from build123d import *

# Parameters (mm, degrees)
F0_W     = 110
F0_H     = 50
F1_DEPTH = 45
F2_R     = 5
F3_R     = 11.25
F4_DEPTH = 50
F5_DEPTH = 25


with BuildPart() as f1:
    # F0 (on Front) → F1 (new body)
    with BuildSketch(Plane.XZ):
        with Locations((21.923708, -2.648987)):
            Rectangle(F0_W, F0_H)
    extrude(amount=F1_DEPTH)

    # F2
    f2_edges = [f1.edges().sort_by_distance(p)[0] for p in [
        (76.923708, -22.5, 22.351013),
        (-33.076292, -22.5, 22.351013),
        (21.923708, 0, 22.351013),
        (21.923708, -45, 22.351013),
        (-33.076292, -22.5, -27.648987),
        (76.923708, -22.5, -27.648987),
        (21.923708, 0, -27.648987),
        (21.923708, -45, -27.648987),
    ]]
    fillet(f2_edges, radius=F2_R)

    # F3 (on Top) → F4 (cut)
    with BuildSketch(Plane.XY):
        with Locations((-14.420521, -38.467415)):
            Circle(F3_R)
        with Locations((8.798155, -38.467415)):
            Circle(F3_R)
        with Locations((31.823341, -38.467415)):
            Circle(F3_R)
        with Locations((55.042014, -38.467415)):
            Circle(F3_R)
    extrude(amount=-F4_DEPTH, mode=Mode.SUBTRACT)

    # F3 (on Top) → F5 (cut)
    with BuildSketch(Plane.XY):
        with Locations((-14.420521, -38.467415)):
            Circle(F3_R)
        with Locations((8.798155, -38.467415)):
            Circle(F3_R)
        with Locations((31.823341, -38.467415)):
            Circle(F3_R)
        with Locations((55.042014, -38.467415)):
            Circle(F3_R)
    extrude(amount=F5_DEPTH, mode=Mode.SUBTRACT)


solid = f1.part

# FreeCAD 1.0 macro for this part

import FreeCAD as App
import Part
import Sketcher

V = App.Vector
Q = App.Units.Quantity


def edges_at(feature, points):
    """Names of the edges that pass closest to the given points."""
    edges = feature.Shape.Edges
    near = lambda p: min(range(len(edges)), key=lambda i: edges[i].distToShape(Part.Vertex(*p))[0])
    return sorted({f"Edge{near(p) + 1}" for p in points})

doc = App.newDocument("Part")
body = doc.addObject("PartDesign::Body", "Body")

# Sketch on XZ plane
sketch1 = body.newObject("Sketcher::SketchObject", "Sketch")
sketch1.AttachmentSupport = (doc.getObject("XZ_Plane"), [""])
sketch1.MapMode = "FlatFace"
sketch1.addGeometry(Part.LineSegment(V(-33.076292, 22.351013, 0), V(-33.076292, -27.648987, 0)), False)
sketch1.addGeometry(Part.LineSegment(V(-33.076292, -27.648987, 0), V(76.923708, -27.648987, 0)), False)
sketch1.addGeometry(Part.LineSegment(V(76.923708, -27.648987, 0), V(76.923708, 22.351013, 0)), False)
sketch1.addGeometry(Part.LineSegment(V(76.923708, 22.351013, 0), V(-33.076292, 22.351013, 0)), False)
sketch1.addConstraint(Sketcher.Constraint("Coincident", 0, 2, 1, 1))
sketch1.addConstraint(Sketcher.Constraint("Coincident", 1, 2, 2, 1))
sketch1.addConstraint(Sketcher.Constraint("Coincident", 2, 2, 3, 1))
sketch1.addConstraint(Sketcher.Constraint("Coincident", 3, 2, 0, 1))
sketch1.addConstraint(Sketcher.Constraint("Vertical", 0))
sketch1.addConstraint(Sketcher.Constraint("Horizontal", 1))
sketch1.addConstraint(Sketcher.Constraint("Vertical", 2))
sketch1.addConstraint(Sketcher.Constraint("Horizontal", 3))
sketch1.addConstraint(Sketcher.Constraint("DistanceX", 1, 1, 1, 2, Q("110 mm")))
sketch1.addConstraint(Sketcher.Constraint("DistanceY", 0, 2, 0, 1, Q("50 mm")))
sketch1.addConstraint(Sketcher.Constraint("DistanceX", -1, 1, 1, 2, Q("76.923708 mm")))
sketch1.addConstraint(Sketcher.Constraint("DistanceY", 0, 2, -1, 1, Q("27.648987 mm")))
pad1 = body.newObject("PartDesign::Pad", "Pad")
pad1.Profile = sketch1
pad1.Length = 45
doc.recompute()

fillet = body.newObject("PartDesign::Fillet", "Fillet")
fillet.Base = (pad1, edges_at(pad1, [
    (76.924, -22.5, 22.351),
    (-33.076, -22.5, 22.351),
    (21.924, 0, 22.351),
    (21.924, -45, 22.351),
    (-33.076, -22.5, -27.649),
    (76.924, -22.5, -27.649),
    (21.924, 0, -27.649),
    (21.924, -45, -27.649),
]))
fillet.Radius = 5

# Sketch on XY plane
sketch2 = body.newObject("Sketcher::SketchObject", "Sketch001")
sketch2.AttachmentSupport = (doc.getObject("XY_Plane"), [""])
sketch2.MapMode = "FlatFace"
sketch2.addGeometry(Part.Circle(V(-14.420521, -38.467415, 0), V(0, 0, 1), 11.25), False)
sketch2.addGeometry(Part.Circle(V(8.798155, -38.467415, 0), V(0, 0, 1), 11.25), False)
sketch2.addGeometry(Part.Circle(V(31.823341, -38.467415, 0), V(0, 0, 1), 11.25), False)
sketch2.addGeometry(Part.Circle(V(55.042014, -38.467415, 0), V(0, 0, 1), 11.25), False)
sketch2.addConstraint(Sketcher.Constraint("Equal", 0, 1))
sketch2.addConstraint(Sketcher.Constraint("Equal", 1, 2))
sketch2.addConstraint(Sketcher.Constraint("Equal", 2, 3))
sketch2.addConstraint(Sketcher.Constraint("Horizontal", 0, 3, 1, 3))
sketch2.addConstraint(Sketcher.Constraint("Horizontal", 1, 3, 2, 3))
sketch2.addConstraint(Sketcher.Constraint("Horizontal", 2, 3, 3, 3))
sketch2.addConstraint(Sketcher.Constraint("Diameter", 0, Q("22.5 mm")))
sketch2.addConstraint(Sketcher.Constraint("DistanceX", 0, 3, -1, 1, Q("14.420521 mm")))
sketch2.addConstraint(Sketcher.Constraint("DistanceX", -1, 1, 2, 3, Q("31.823341 mm")))
sketch2.addConstraint(Sketcher.Constraint("DistanceX", 1, 3, 3, 3, Q("46.243859 mm")))
sketch2.addConstraint(Sketcher.Constraint("DistanceY", 0, 3, -1, 1, Q("38.467415 mm")))
sketch2.addConstraint(Sketcher.Constraint("DistanceX", -1, 1, 1, 3, Q("8.798155 mm")))
pocket1 = body.newObject("PartDesign::Pocket", "Pocket")
pocket1.Profile = sketch2
pocket1.Length = 50

# Sketch on XY plane
sketch3 = body.newObject("Sketcher::SketchObject", "Sketch002")
sketch3.AttachmentSupport = (doc.getObject("XY_Plane"), [""])
sketch3.MapMode = "FlatFace"
sketch3.addGeometry(Part.Circle(V(-14.420521, -38.467415, 0), V(0, 0, 1), 11.25), False)
sketch3.addGeometry(Part.Circle(V(8.798155, -38.467415, 0), V(0, 0, 1), 11.25), False)
sketch3.addGeometry(Part.Circle(V(31.823341, -38.467415, 0), V(0, 0, 1), 11.25), False)
sketch3.addGeometry(Part.Circle(V(55.042014, -38.467415, 0), V(0, 0, 1), 11.25), False)
sketch3.addConstraint(Sketcher.Constraint("Equal", 0, 1))
sketch3.addConstraint(Sketcher.Constraint("Equal", 1, 2))
sketch3.addConstraint(Sketcher.Constraint("Equal", 2, 3))
sketch3.addConstraint(Sketcher.Constraint("Horizontal", 0, 3, 1, 3))
sketch3.addConstraint(Sketcher.Constraint("Horizontal", 1, 3, 2, 3))
sketch3.addConstraint(Sketcher.Constraint("Horizontal", 2, 3, 3, 3))
sketch3.addConstraint(Sketcher.Constraint("Diameter", 0, Q("22.5 mm")))
sketch3.addConstraint(Sketcher.Constraint("DistanceX", 0, 3, -1, 1, Q("14.420521 mm")))
sketch3.addConstraint(Sketcher.Constraint("DistanceX", -1, 1, 2, 3, Q("31.823341 mm")))
sketch3.addConstraint(Sketcher.Constraint("DistanceX", 1, 3, 3, 3, Q("46.243859 mm")))
sketch3.addConstraint(Sketcher.Constraint("DistanceY", 0, 3, -1, 1, Q("38.467415 mm")))
sketch3.addConstraint(Sketcher.Constraint("DistanceX", -1, 1, 1, 3, Q("8.798155 mm")))
pocket2 = body.newObject("PartDesign::Pocket", "Pocket001")
pocket2.Profile = sketch3
pocket2.Length = 25
pocket2.Reversed = True

doc.recompute()
